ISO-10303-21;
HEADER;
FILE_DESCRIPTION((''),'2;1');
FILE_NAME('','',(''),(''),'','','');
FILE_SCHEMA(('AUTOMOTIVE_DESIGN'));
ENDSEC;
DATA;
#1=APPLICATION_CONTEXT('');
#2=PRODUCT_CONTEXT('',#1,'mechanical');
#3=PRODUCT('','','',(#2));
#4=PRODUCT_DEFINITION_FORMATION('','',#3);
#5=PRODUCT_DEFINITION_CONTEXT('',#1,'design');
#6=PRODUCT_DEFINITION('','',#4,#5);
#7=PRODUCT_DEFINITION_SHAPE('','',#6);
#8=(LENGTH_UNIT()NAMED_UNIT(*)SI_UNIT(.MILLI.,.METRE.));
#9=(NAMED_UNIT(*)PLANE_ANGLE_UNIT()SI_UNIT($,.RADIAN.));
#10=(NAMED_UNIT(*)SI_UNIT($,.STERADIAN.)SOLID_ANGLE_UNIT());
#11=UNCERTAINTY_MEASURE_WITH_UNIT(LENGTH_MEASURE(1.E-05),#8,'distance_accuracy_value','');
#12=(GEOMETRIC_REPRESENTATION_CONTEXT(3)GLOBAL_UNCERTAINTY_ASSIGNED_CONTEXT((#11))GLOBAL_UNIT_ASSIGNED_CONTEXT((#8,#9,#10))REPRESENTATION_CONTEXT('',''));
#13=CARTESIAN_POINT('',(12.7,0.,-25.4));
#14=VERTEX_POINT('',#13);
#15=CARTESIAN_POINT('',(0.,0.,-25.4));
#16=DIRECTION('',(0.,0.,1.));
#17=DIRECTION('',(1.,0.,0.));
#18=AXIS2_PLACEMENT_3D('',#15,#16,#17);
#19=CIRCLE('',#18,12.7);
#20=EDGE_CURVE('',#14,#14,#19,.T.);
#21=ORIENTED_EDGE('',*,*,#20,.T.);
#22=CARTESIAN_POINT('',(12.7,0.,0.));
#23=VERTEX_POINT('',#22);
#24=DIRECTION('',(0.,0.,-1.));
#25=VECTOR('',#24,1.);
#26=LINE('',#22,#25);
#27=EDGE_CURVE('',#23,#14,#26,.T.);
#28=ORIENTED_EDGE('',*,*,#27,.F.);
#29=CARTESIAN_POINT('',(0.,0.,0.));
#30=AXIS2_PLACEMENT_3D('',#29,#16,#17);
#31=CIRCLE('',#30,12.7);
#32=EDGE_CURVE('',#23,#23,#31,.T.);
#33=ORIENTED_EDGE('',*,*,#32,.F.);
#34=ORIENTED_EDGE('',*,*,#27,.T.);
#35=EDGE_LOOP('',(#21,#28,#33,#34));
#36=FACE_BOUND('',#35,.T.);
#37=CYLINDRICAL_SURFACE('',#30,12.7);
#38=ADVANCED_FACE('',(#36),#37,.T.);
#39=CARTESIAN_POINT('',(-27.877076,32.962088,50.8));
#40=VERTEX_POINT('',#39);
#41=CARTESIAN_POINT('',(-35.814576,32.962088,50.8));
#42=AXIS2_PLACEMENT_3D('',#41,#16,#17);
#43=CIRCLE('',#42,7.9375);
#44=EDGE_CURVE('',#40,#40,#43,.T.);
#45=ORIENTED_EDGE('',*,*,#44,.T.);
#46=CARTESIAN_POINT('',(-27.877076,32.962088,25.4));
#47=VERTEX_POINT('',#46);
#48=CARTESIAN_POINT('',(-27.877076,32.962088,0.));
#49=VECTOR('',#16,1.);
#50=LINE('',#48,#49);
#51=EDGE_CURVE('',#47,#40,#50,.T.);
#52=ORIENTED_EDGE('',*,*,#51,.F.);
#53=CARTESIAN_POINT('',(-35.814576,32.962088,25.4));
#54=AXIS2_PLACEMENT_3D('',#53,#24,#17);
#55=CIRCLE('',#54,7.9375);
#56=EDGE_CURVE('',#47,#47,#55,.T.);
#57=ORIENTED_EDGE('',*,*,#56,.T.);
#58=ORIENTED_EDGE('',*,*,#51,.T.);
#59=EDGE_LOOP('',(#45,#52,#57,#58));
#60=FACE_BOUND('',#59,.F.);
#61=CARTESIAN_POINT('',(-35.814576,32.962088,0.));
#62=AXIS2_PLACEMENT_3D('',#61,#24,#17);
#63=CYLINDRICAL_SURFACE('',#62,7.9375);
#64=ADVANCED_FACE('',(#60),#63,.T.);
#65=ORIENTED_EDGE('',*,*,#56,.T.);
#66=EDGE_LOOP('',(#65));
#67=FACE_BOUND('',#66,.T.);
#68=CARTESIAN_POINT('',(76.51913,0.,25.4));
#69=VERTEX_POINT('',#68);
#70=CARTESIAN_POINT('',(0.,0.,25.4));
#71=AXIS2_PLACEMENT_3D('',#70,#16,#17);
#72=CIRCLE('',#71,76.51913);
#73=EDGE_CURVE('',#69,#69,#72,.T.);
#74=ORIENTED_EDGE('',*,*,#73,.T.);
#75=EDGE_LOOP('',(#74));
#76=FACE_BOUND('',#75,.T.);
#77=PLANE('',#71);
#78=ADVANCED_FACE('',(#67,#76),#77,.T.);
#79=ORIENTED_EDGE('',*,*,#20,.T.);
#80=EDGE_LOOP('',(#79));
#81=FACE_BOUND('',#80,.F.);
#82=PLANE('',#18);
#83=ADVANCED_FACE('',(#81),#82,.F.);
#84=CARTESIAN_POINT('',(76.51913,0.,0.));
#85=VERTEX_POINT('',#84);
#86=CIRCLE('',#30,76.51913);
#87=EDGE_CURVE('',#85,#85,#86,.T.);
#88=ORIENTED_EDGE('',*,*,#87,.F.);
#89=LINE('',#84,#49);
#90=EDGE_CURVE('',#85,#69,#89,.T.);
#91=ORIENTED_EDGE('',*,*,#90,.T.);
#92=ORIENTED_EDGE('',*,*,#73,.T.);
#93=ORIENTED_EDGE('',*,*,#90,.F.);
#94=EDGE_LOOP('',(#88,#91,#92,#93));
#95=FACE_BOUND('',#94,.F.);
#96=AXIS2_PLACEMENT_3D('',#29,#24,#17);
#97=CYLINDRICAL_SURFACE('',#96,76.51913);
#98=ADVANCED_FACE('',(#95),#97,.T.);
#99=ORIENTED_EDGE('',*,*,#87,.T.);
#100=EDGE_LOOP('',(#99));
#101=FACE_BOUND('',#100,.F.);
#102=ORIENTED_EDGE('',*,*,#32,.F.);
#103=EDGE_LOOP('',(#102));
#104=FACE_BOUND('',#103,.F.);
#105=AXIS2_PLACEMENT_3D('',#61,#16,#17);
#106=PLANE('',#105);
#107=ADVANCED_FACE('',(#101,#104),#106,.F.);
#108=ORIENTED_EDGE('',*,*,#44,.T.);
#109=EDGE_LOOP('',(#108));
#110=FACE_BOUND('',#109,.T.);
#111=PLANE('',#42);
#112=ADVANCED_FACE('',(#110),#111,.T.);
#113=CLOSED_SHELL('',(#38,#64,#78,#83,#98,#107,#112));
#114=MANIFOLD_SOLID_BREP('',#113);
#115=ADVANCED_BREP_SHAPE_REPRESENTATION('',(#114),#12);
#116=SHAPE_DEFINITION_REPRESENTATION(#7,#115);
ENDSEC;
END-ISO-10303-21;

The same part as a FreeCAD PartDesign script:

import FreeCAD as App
import Part
import Sketcher

V = App.Vector
Q = App.Units.Quantity

doc = App.newDocument("Part")
body = doc.addObject("PartDesign::Body", "Body")

# Sketch on XY plane
sketch1 = body.newObject("Sketcher::SketchObject", "Sketch")
sketch1.AttachmentSupport = (doc.getObject("XY_Plane"), [""])
sketch1.MapMode = "FlatFace"
sketch1.addGeometry(Part.Circle(V(0, 0, 0), V(0, 0, 1), 77), False)
sketch1.addConstraint(Sketcher.Constraint("Coincident", 0, 3, -1, 1))
sketch1.addConstraint(Sketcher.Constraint("Diameter", 0, 153.03826))
pad1 = body.newObject("PartDesign::Pad", "Pad")
pad1.Profile = sketch1
pad1.Length = Q("1 in")

# Sketch on XY plane
sketch2 = body.newObject("Sketcher::SketchObject", "Sketch001")
sketch2.AttachmentSupport = (doc.getObject("XY_Plane"), [""])
sketch2.MapMode = "FlatFace"
sketch2.addGeometry(Part.Circle(V(-36, 33, 0), V(0, 0, 1), 8), False)
sketch2.addConstraint(Sketcher.Constraint("Diameter", 0, Q("0.625 in")))
sketch2.addConstraint(Sketcher.Constraint("DistanceX", 0, 3, -1, 1, 35.814576))
sketch2.addConstraint(Sketcher.Constraint("DistanceY", -1, 1, 0, 3, 32.962088))
pad2 = body.newObject("PartDesign::Pad", "Pad001")
pad2.Profile = sketch2
pad2.Length = Q("2 in")

# Sketch on XY plane
sketch3 = body.newObject("Sketcher::SketchObject", "Sketch002")
sketch3.AttachmentSupport = (doc.getObject("XY_Plane"), [""])
sketch3.MapMode = "FlatFace"
sketch3.addGeometry(Part.Circle(V(0, 0, 0), V(0, 0, 1), 13), False)
sketch3.addConstraint(Sketcher.Constraint("Coincident", 0, 3, -1, 1))
sketch3.addConstraint(Sketcher.Constraint("Diameter", 0, Q("1 in")))
pad3 = body.newObject("PartDesign::Pad", "Pad002")
pad3.Profile = sketch3
pad3.Length = Q("1 in")
pad3.Reversed = True

doc.recompute()
